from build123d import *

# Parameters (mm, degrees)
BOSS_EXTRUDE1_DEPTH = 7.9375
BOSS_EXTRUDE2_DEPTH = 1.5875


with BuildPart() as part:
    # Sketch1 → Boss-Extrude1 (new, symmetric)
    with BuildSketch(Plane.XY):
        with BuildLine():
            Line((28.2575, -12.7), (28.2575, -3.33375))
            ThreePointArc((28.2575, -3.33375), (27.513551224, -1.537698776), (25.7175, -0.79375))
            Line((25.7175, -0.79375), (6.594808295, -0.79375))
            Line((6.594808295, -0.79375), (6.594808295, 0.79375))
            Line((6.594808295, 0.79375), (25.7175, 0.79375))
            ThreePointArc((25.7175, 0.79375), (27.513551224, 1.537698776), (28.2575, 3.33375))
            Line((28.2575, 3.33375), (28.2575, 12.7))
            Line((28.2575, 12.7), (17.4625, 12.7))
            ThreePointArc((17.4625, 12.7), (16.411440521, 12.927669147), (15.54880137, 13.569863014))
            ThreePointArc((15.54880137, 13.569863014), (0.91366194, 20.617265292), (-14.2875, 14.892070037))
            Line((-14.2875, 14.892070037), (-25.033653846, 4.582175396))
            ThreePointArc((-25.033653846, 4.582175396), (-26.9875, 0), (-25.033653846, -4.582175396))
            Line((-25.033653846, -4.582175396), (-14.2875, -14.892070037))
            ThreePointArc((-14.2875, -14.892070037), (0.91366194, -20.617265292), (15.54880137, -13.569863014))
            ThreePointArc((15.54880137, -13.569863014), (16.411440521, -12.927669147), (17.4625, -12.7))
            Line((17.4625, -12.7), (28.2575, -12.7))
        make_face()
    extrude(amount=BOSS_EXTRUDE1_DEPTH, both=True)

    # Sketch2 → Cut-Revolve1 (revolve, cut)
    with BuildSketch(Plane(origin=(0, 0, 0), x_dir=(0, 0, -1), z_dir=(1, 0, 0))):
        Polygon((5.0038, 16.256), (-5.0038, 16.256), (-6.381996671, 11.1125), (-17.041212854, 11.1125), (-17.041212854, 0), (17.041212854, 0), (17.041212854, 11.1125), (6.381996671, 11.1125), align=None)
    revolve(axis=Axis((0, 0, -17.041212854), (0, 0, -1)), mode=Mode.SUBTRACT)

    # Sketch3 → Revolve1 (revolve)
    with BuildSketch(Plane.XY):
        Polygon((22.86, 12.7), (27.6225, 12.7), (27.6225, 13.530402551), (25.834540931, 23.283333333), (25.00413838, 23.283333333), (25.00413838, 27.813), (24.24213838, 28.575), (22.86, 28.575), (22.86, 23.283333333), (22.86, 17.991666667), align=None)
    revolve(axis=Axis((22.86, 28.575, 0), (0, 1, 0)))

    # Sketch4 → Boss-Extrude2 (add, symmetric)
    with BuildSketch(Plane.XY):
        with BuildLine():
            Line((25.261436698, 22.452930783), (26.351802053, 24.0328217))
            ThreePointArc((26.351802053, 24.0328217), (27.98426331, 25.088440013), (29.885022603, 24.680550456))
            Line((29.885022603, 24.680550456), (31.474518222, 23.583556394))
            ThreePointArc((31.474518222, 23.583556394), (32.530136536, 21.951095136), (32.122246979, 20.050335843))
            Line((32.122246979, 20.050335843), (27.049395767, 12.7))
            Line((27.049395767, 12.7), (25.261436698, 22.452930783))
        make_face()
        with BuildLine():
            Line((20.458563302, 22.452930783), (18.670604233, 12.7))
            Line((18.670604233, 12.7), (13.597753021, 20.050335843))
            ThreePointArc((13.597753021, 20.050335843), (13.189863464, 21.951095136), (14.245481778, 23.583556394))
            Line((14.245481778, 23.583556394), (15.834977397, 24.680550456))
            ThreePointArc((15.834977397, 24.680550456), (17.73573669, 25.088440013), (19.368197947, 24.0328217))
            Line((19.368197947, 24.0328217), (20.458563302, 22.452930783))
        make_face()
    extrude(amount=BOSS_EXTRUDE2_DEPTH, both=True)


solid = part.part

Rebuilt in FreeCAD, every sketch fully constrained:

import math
import FreeCAD as App
import Part
import Sketcher

V = App.Vector
Q = App.Units.Quantity

doc = App.newDocument("Part")
params = doc.addObject("Spreadsheet::Sheet", "Params")
for row, (alias, value) in enumerate([
    ("sketch1_radius", "0.1 in"),
    ("sketch1_radius2", "0.25 in"),
    ("sketch1_radius3", "0.8125 in"),
    ("sketch1_width", "0.425 in"),
    ("sketch1_height", "0.0625 in"),
    ("pad1_length", "0.625 in"),
    ("sketch2_width", "0.4375 in"),
    ("sketch2_height", "0.394 in"),
    ("groove_angle", "360 deg"),
    ("sketch3_width", "0.1875 in"),
    ("sketch3_height", "0.625 in"),
    ("revolution_angle", "360 deg"),
    ("sketch4_radius", "0.1 in"),
    ("pad2_length", "0.125 in"),
], start=1):
    params.set(f"A{row}", alias)
    params.set(f"B{row}", "=" + value)
    params.setAlias(f"B{row}", alias)

body = doc.addObject("PartDesign::Body", "Body")

sketch1 = body.newObject("Sketcher::SketchObject", "Sketch")
sketch1.AttachmentSupport = (doc.getObject("XY_Plane"), [""])
sketch1.MapMode = "FlatFace"
sketch1.addGeometry(Part.LineSegment(V(28.3, -12.7, 0), V(28.3, -3.3, 0)), False)
sketch1.addGeometry(Part.ArcOfCircle(Part.Circle(V(25.7, -3.3, 0), V(0, 0, 1), 2.5), math.radians(0), math.radians(90)), False)
sketch1.addGeometry(Part.LineSegment(V(25.7, -0.8, 0), V(6.6, -0.8, 0)), False)
sketch1.addGeometry(Part.LineSegment(V(6.6, -0.8, 0), V(6.6, 0.8, 0)), False)
sketch1.addGeometry(Part.LineSegment(V(6.6, 0.8, 0), V(25.7, 0.8, 0)), False)
sketch1.addGeometry(Part.ArcOfCircle(Part.Circle(V(25.7, 3.3, 0), V(0, 0, 1), 2.5), math.radians(-90), math.radians(0)), False)
sketch1.addGeometry(Part.LineSegment(V(28.3, 3.3, 0), V(28.3, 12.7, 0)), False)
sketch1.addGeometry(Part.LineSegment(V(28.3, 12.7, 0), V(17.5, 12.7, 0)), False)
sketch1.addGeometry(Part.ArcOfCircle(Part.Circle(V(17.5, 15.2, 0), V(0, 0, 1), 2.5), math.radians(-139), math.radians(-90)), False)
sketch1.addGeometry(Part.ArcOfCircle(Part.Circle(V(0, 0, 0), V(0, 0, 1), 20.6), math.radians(41), math.radians(134)), False)
sketch1.addGeometry(Part.LineSegment(V(-14.3, 14.9, 0), V(-25, 4.6, 0)), False)
sketch1.addGeometry(Part.ArcOfCircle(Part.Circle(V(-20.6, 0, 0), V(0, 0, 1), 6.3), math.radians(134), math.radians(226)), False)
sketch1.addGeometry(Part.LineSegment(V(-25, -4.6, 0), V(-14.3, -14.9, 0)), False)
sketch1.addGeometry(Part.ArcOfCircle(Part.Circle(V(0, 0, 0), V(0, 0, 1), 20.6), math.radians(-134), math.radians(-41)), False)
sketch1.addGeometry(Part.ArcOfCircle(Part.Circle(V(17.5, -15.2, 0), V(0, 0, 1), 2.5), math.radians(90), math.radians(139)), False)
sketch1.addGeometry(Part.LineSegment(V(17.5, -12.7, 0), V(28.3, -12.7, 0)), False)
sketch1.addConstraint(Sketcher.Constraint("Tangent", 0, 2, 1, 1))
sketch1.addConstraint(Sketcher.Constraint("Tangent", 1, 2, 2, 1))
sketch1.addConstraint(Sketcher.Constraint("Coincident", 2, 2, 3, 1))
sketch1.addConstraint(Sketcher.Constraint("Coincident", 3, 2, 4, 1))
sketch1.addConstraint(Sketcher.Constraint("Tangent", 4, 2, 5, 1))
sketch1.addConstraint(Sketcher.Constraint("Tangent", 5, 2, 6, 1))
sketch1.addConstraint(Sketcher.Constraint("Coincident", 6, 2, 7, 1))
sketch1.addConstraint(Sketcher.Constraint("Tangent", 7, 2, 8, 2))
sketch1.addConstraint(Sketcher.Constraint("Tangent", 8, 1, 9, 1))
sketch1.addConstraint(Sketcher.Constraint("Tangent", 9, 2, 10, 1))
sketch1.addConstraint(Sketcher.Constraint("Tangent", 10, 2, 11, 1))
sketch1.addConstraint(Sketcher.Constraint("Tangent", 11, 2, 12, 1))
sketch1.addConstraint(Sketcher.Constraint("Tangent", 12, 2, 13, 1))
sketch1.addConstraint(Sketcher.Constraint("Tangent", 13, 2, 14, 2))
sketch1.addConstraint(Sketcher.Constraint("Tangent", 14, 1, 15, 1))
sketch1.addConstraint(Sketcher.Constraint("Coincident", 15, 2, 0, 1))
sketch1.addConstraint(Sketcher.Constraint("Vertical", 0))
sketch1.addConstraint(Sketcher.Constraint("Horizontal", 2))
sketch1.addConstraint(Sketcher.Constraint("Vertical", 3))
sketch1.addConstraint(Sketcher.Constraint("Horizontal", 4))
sketch1.addConstraint(Sketcher.Constraint("Vertical", 6))
sketch1.addConstraint(Sketcher.Constraint("Horizontal", 7))
sketch1.addConstraint(Sketcher.Constraint("Horizontal", 15))
sketch1.addConstraint(Sketcher.Constraint("Coincident", 9, 3, -1, 1))
sketch1.addConstraint(Sketcher.Constraint("Coincident", 13, 3, -1, 1))
sketch1.addConstraint(Sketcher.Constraint("Equal", 1, 5))
sketch1.addConstraint(Sketcher.Constraint("Equal", 5, 8))
sketch1.addConstraint(Sketcher.Constraint("Equal", 9, 13))
sketch1.addConstraint(Sketcher.Constraint("Equal", 8, 14))
sketch1.addConstraint(Sketcher.Constraint("Symmetric", 1, 3, 5, 3, -1))
sketch1.addConstraint(Sketcher.Constraint("PointOnObject", 11, 3, -1))
sketch1.addConstraint(Sketcher.Constraint("Vertical", 8, 3, 14, 3))
sketch1.addConstraint(Sketcher.Constraint("Radius", 1, Q("0.1 in")))
sketch1.addConstraint(Sketcher.Constraint("Radius", 11, Q("0.25 in")))
sketch1.addConstraint(Sketcher.Constraint("Radius", 9, Q("0.8125 in")))
sketch1.addConstraint(Sketcher.Constraint("DistanceY", -1, 1, 8, 3, Q("0.6 in")))
sketch1.addConstraint(Sketcher.Constraint("DistanceX", 11, 3, 8, 3, Q("1.5 in")))
sketch1.addConstraint(Sketcher.Constraint("DistanceX", 7, 2, 7, 1, Q("0.425 in")))
sketch1.addConstraint(Sketcher.Constraint("DistanceY", 3, 1, 3, 2, Q("0.0625 in")))
sketch1.addConstraint(Sketcher.Constraint("DistanceX", 2, 2, 2, 1, 19.122692))
sketch1.setExpression("Constraints[32]", "Params.sketch1_radius")
sketch1.setExpression("Constraints[33]", "Params.sketch1_radius2")
sketch1.setExpression("Constraints[34]", "Params.sketch1_radius3")
sketch1.setExpression("Constraints[37]", "Params.sketch1_width")
sketch1.setExpression("Constraints[38]", "Params.sketch1_height")
pad1 = body.newObject("PartDesign::Pad", "Pad")
pad1.Profile = sketch1
pad1.setExpression("Length", "Params.pad1_length")
pad1.Midplane = True

sketch2 = body.newObject("Sketcher::SketchObject", "Sketch001")
sketch2.AttachmentSupport = (doc.getObject("YZ_Plane"), [""])
sketch2.MapMode = "FlatFace"
sketch2.addGeometry(Part.LineSegment(V(16, -5, 0), V(16, 5, 0)), False)
sketch2.addGeometry(Part.LineSegment(V(16, 5, 0), V(11, 6, 0)), False)
sketch2.addGeometry(Part.LineSegment(V(11, 6, 0), V(11, 17, 0)), False)
sketch2.addGeometry(Part.LineSegment(V(11, 17, 0), V(0, 17, 0)), False)
sketch2.addGeometry(Part.LineSegment(V(0, 17, 0), V(0, -17, 0)), False)
sketch2.addGeometry(Part.LineSegment(V(0, -17, 0), V(11, -17, 0)), False)
sketch2.addGeometry(Part.LineSegment(V(11, -17, 0), V(11, -6, 0)), False)
sketch2.addGeometry(Part.LineSegment(V(11, -6, 0), V(16, -5, 0)), False)
sketch2.addConstraint(Sketcher.Constraint("Coincident", 0, 2, 1, 1))
sketch2.addConstraint(Sketcher.Constraint("Coincident", 1, 2, 2, 1))
sketch2.addConstraint(Sketcher.Constraint("Coincident", 2, 2, 3, 1))
sketch2.addConstraint(Sketcher.Constraint("Coincident", 3, 2, 4, 1))
sketch2.addConstraint(Sketcher.Constraint("Coincident", 4, 2, 5, 1))
sketch2.addConstraint(Sketcher.Constraint("Coincident", 5, 2, 6, 1))
sketch2.addConstraint(Sketcher.Constraint("Coincident", 6, 2, 7, 1))
sketch2.addConstraint(Sketcher.Constraint("Coincident", 7, 2, 0, 1))
sketch2.addConstraint(Sketcher.Constraint("Vertical", 0))
sketch2.addConstraint(Sketcher.Constraint("Vertical", 2))
sketch2.addConstraint(Sketcher.Constraint("Horizontal", 3))
sketch2.addConstraint(Sketcher.Constraint("Vertical", 4))
sketch2.addConstraint(Sketcher.Constraint("Horizontal", 5))
sketch2.addConstraint(Sketcher.Constraint("Vertical", 6))
sketch2.addConstraint(Sketcher.Constraint("Symmetric", 3, 2, 4, 2, -1, 1))
sketch2.addConstraint(Sketcher.Constraint("Symmetric", 1, 2, 6, 2, -1))
sketch2.addConstraint(Sketcher.Constraint("Equal", 1, 7))
sketch2.addConstraint(Sketcher.Constraint("Angle", 1, Q("165 deg")))
sketch2.addConstraint(Sketcher.Constraint("DistanceX", 3, 2, 3, 1, Q("0.4375 in")))
sketch2.addConstraint(Sketcher.Constraint("DistanceY", 0, 1, 0, 2, Q("0.394 in")))
sketch2.addConstraint(Sketcher.Constraint("DistanceX", -1, 1, 0, 2, Q("0.64 in")))
sketch2.addConstraint(Sketcher.Constraint("DistanceY", 2, 1, 2, 2, 10.659216))
sketch2.setExpression("Constraints[18]", "Params.sketch2_width")
sketch2.setExpression("Constraints[19]", "Params.sketch2_height")
groove = body.newObject("PartDesign::Groove", "Groove")
groove.Profile = sketch2
groove.ReferenceAxis = (sketch2, ["V_Axis"])
groove.setExpression("Angle", "Params.groove_angle")

sketch3 = body.newObject("Sketcher::SketchObject", "Sketch002")
sketch3.AttachmentSupport = (doc.getObject("XY_Plane"), [""])
sketch3.MapMode = "FlatFace"
sketch3.addGeometry(Part.LineSegment(V(22.9, 12.7, 0), V(27.6, 12.7, 0)), False)
sketch3.addGeometry(Part.LineSegment(V(27.6, 12.7, 0), V(27.6, 13.5, 0)), False)
sketch3.addGeometry(Part.LineSegment(V(27.6, 13.5, 0), V(25.8, 23.3, 0)), False)
sketch3.addGeometry(Part.LineSegment(V(25.8, 23.3, 0), V(25, 23.3, 0)), False)
sketch3.addGeometry(Part.LineSegment(V(25, 23.3, 0), V(25, 27.8, 0)), False)
sketch3.addGeometry(Part.LineSegment(V(25, 27.8, 0), V(24.2, 28.6, 0)), False)
sketch3.addGeometry(Part.LineSegment(V(24.2, 28.6, 0), V(22.9, 28.6, 0)), False)
sketch3.addGeometry(Part.LineSegment(V(22.9, 28.6, 0), V(22.9, 12.7, 0)), False)
sketch3.addGeometry(Part.LineSegment(V(22.9, 12.7, 0), V(22.9, 28.6, 0)), True)
sketch3.addConstraint(Sketcher.Constraint("Coincident", 0, 2, 1, 1))
sketch3.addConstraint(Sketcher.Constraint("Coincident", 1, 2, 2, 1))
sketch3.addConstraint(Sketcher.Constraint("Coincident", 2, 2, 3, 1))
sketch3.addConstraint(Sketcher.Constraint("Coincident", 3, 2, 4, 1))
sketch3.addConstraint(Sketcher.Constraint("Coincident", 4, 2, 5, 1))
sketch3.addConstraint(Sketcher.Constraint("Coincident", 5, 2, 6, 1))
sketch3.addConstraint(Sketcher.Constraint("Coincident", 6, 2, 7, 1))
sketch3.addConstraint(Sketcher.Constraint("Coincident", 7, 2, 0, 1))
sketch3.addConstraint(Sketcher.Constraint("Horizontal", 0))
sketch3.addConstraint(Sketcher.Constraint("Vertical", 1))
sketch3.addConstraint(Sketcher.Constraint("Horizontal", 3))
sketch3.addConstraint(Sketcher.Constraint("Vertical", 4))
sketch3.addConstraint(Sketcher.Constraint("Horizontal", 6))
sketch3.addConstraint(Sketcher.Constraint("Vertical", 7))
sketch3.addConstraint(Sketcher.Constraint("Vertical", 8))
sketch3.addConstraint(Sketcher.Constraint("Coincident", 8, 1, 7, 2))
sketch3.addConstraint(Sketcher.Constraint("Horizontal", 5, 2, 8, 2))
sketch3.addConstraint(Sketcher.Constraint("Equal", 3, 1))
sketch3.addConstraint(Sketcher.Constraint("Angle", 5, Q("135 deg")))
sketch3.addConstraint(Sketcher.Constraint("DistanceY", -1, 1, 0, 2, Q("0.5 in")))
sketch3.addConstraint(Sketcher.Constraint("DistanceX", -1, 1, 6, 2, Q("0.9 in")))
sketch3.addConstraint(Sketcher.Constraint("DistanceX", 0, 1, 0, 2, Q("0.1875 in")))
sketch3.addConstraint(Sketcher.Constraint("DistanceY", 7, 2, 7, 1, Q("0.625 in")))
sketch3.addConstraint(Sketcher.Constraint("DistanceX", 5, 2, 4, 2, Q("0.03 in")))
sketch3.addConstraint(Sketcher.Constraint("DistanceX", 6, 2, 6, 1, 1.382138))
sketch3.addConstraint(Sketcher.Constraint("DistanceX", 3, 2, 3, 1, 0.830403))
sketch3.addConstraint(Sketcher.Constraint("DistanceY", 4, 1, 4, 2, 4.529667))
sketch3.setExpression("Constraints[21]", "Params.sketch3_width")
sketch3.setExpression("Constraints[22]", "Params.sketch3_height")
revolution = body.newObject("PartDesign::Revolution", "Revolution")
revolution.Profile = sketch3
revolution.ReferenceAxis = (sketch3, ["Axis0"])
revolution.setExpression("Angle", "Params.revolution_angle")

sketch4 = body.newObject("Sketcher::SketchObject", "Sketch003")
sketch4.AttachmentSupport = (doc.getObject("XY_Plane"), [""])
sketch4.MapMode = "FlatFace"
sketch4.addGeometry(Part.LineSegment(V(26.4, 24, 0), V(25.3, 22.5, 0)), False)
sketch4.addGeometry(Part.LineSegment(V(25.3, 22.5, 0), V(27, 12.7, 0)), False)
sketch4.addGeometry(Part.LineSegment(V(27, 12.7, 0), V(32.1, 20.1, 0)), False)
sketch4.addGeometry(Part.ArcOfCircle(Part.Circle(V(30, 21.5, 0), V(0, 0, 1), 2.5), math.radians(-35), math.radians(55)), False)
sketch4.addGeometry(Part.LineSegment(V(31.5, 23.6, 0), V(29.9, 24.7, 0)), False)
sketch4.addGeometry(Part.ArcOfCircle(Part.Circle(V(28.4, 22.6, 0), V(0, 0, 1), 2.5), math.radians(55), math.radians(145)), False)
sketch4.addGeometry(Part.LineSegment(V(18.7, 12.7, 0), V(20.5, 22.5, 0)), False)
sketch4.addGeometry(Part.LineSegment(V(20.5, 22.5, 0), V(19.4, 24, 0)), False)
sketch4.addGeometry(Part.ArcOfCircle(Part.Circle(V(17.3, 22.6, 0), V(0, 0, 1), 2.5), math.radians(35), math.radians(125)), False)
sketch4.addGeometry(Part.LineSegment(V(15.8, 24.7, 0), V(14.2, 23.6, 0)), False)
sketch4.addGeometry(Part.ArcOfCircle(Part.Circle(V(15.7, 21.5, 0), V(0, 0, 1), 2.5), math.radians(125), math.radians(215)), False)
sketch4.addGeometry(Part.LineSegment(V(13.6, 20.1, 0), V(18.7, 12.7, 0)), False)
sketch4.addConstraint(Sketcher.Constraint("Coincident", 0, 2, 1, 1))
sketch4.addConstraint(Sketcher.Constraint("Coincident", 1, 2, 2, 1))
sketch4.addConstraint(Sketcher.Constraint("Tangent", 2, 2, 3, 1))
sketch4.addConstraint(Sketcher.Constraint("Tangent", 3, 2, 4, 1))
sketch4.addConstraint(Sketcher.Constraint("Tangent", 4, 2, 5, 1))
sketch4.addConstraint(Sketcher.Constraint("Tangent", 5, 2, 0, 1))
sketch4.addConstraint(Sketcher.Constraint("Coincident", 6, 2, 7, 1))
sketch4.addConstraint(Sketcher.Constraint("Tangent", 7, 2, 8, 1))
sketch4.addConstraint(Sketcher.Constraint("Tangent", 8, 2, 9, 1))
sketch4.addConstraint(Sketcher.Constraint("Tangent", 9, 2, 10, 1))
sketch4.addConstraint(Sketcher.Constraint("Tangent", 10, 2, 11, 1))
sketch4.addConstraint(Sketcher.Constraint("Coincident", 11, 2, 6, 1))
sketch4.addConstraint(Sketcher.Constraint("Equal", 3, 5))
sketch4.addConstraint(Sketcher.Constraint("Equal", 5, 8))
sketch4.addConstraint(Sketcher.Constraint("Equal", 8, 10))
sketch4.addConstraint(Sketcher.Constraint("Parallel", 0, 2))
sketch4.addConstraint(Sketcher.Constraint("Perpendicular", 2, 4))
sketch4.addConstraint(Sketcher.Constraint("Perpendicular", 7, 9))
sketch4.addConstraint(Sketcher.Constraint("Perpendicular", 9, 11))
sketch4.addConstraint(Sketcher.Constraint("Horizontal", 5, 3, 8, 3))
sketch4.addConstraint(Sketcher.Constraint("Horizontal", 3, 3, 10, 3))
sketch4.addConstraint(Sketcher.Constraint("Horizontal", 0, 2, 6, 2))
sketch4.addConstraint(Sketcher.Constraint("Horizontal", 5, 2, 7, 2))
sketch4.addConstraint(Sketcher.Constraint("Horizontal", 1, 2, 11, 2))
sketch4.addConstraint(Sketcher.Constraint("Radius", 3, Q("0.1 in")))
sketch4.addConstraint(Sketcher.Constraint("DistanceY", -1, 1, 1, 2, Q("0.5 in")))
sketch4.addConstraint(Sketcher.Constraint("DistanceY", -1, 1, 3, 3, 21.493082))
sketch4.addConstraint(Sketcher.Constraint("DistanceY", -1, 1, 0, 2, 22.452931))
sketch4.addConstraint(Sketcher.Constraint("DistanceX", -1, 1, 3, 2, 31.474518))
sketch4.addConstraint(Sketcher.Constraint("DistanceY", -1, 1, 4, 2, 24.68055))
sketch4.addConstraint(Sketcher.Constraint("DistanceY", -1, 1, 5, 2, 24.032822))
sketch4.addConstraint(Sketcher.Constraint("DistanceX", -1, 1, 9, 2, 14.245482))
sketch4.setExpression("Constraints[24]", "Params.sketch4_radius")
pad2 = body.newObject("PartDesign::Pad", "Pad001")
pad2.Profile = sketch4
pad2.setExpression("Length", "Params.pad2_length")
pad2.Midplane = True

doc.recompute()
